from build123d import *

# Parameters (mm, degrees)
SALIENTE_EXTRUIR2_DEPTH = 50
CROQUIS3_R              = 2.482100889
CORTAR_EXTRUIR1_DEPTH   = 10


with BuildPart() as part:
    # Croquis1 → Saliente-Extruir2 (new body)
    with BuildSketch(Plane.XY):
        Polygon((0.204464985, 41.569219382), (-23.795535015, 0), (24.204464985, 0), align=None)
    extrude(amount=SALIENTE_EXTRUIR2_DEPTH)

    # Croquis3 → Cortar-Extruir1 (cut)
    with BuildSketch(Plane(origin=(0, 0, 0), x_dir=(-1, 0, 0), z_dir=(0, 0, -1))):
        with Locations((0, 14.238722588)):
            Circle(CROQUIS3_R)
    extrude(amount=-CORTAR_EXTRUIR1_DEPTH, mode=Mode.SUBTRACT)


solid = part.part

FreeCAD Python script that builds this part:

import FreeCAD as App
import Part
import Sketcher
Q = App.Units.Quantity


def add_polygon(sketch, points):
    """Adds a closed chain of lines whose ends are joined by coincident constraints."""
    first, n = sketch.GeometryCount, len(points)
    for a, b in zip(points, points[1:] + points[:1]):
        sketch.addGeometry(Part.LineSegment(App.Vector(*a, 0), App.Vector(*b, 0)), False)
    for i in range(n):
        sketch.addConstraint(Sketcher.Constraint("Coincident", first + i, 2, first + (i + 1) % n, 1))

doc = App.newDocument("Part")
params = doc.addObject("Spreadsheet::Sheet", "Params")
for row, (alias, value) in enumerate([
    ("sketch1_width", "48 mm"),
    ("pad1_length", "50 mm"),
    ("pocket1_length", "10 mm"),
], start=1):
    params.set(f"A{row}", alias)
    params.set(f"B{row}", "=" + value)
    params.setAlias(f"B{row}", alias)

body = doc.addObject("PartDesign::Body", "Body")

sketch1 = body.newObject("Sketcher::SketchObject", "Sketch")
sketch1.AttachmentSupport = (doc.getObject("XY_Plane"), [""])
sketch1.MapMode = "FlatFace"
add_polygon(sketch1, [(0.204465, 41.569219), (-23.795535, 0), (24.204465, 0)])
sketch1.addConstraint([
    Sketcher.Constraint("Horizontal", 1),
    Sketcher.Constraint("PointOnObject", 0, 2, -1),
    Sketcher.Constraint("Equal", 0, 2),
    Sketcher.Constraint("DistanceX", 1, 1, 1, 2, Q("48 mm")),
    Sketcher.Constraint("Angle", 0, Q("-120 deg")),
    Sketcher.Constraint("DistanceX", 0, 2, -1, 1, Q("23.795535 mm")),
])
sketch1.setExpression("Constraints[6]", "Params.sketch1_width")
pad1 = body.newObject("PartDesign::Pad", "Pad")
pad1.Profile = sketch1
pad1.setExpression("Length", "Params.pad1_length")

sketch2 = body.newObject("Sketcher::SketchObject", "Sketch001")
sketch2.AttachmentSupport = (doc.getObject("XY_Plane"), [""])
sketch2.MapMode = "FlatFace"
sketch2.addGeometry(Part.Circle(App.Vector(0, 14.238723, 0), App.Vector(0, 0, 1), 2.482101), False)
sketch2.addConstraint([
    Sketcher.Constraint("PointOnObject", 0, 3, -2),
    Sketcher.Constraint("Diameter", 0, Q("4.964202 mm")),
    Sketcher.Constraint("DistanceY", -1, 1, 0, 3, Q("14.238723 mm")),
])
pocket1 = body.newObject("PartDesign::Pocket", "Pocket")
pocket1.Profile = sketch2
pocket1.setExpression("Length", "Params.pocket1_length")
pocket1.Reversed = True

doc.recompute()
